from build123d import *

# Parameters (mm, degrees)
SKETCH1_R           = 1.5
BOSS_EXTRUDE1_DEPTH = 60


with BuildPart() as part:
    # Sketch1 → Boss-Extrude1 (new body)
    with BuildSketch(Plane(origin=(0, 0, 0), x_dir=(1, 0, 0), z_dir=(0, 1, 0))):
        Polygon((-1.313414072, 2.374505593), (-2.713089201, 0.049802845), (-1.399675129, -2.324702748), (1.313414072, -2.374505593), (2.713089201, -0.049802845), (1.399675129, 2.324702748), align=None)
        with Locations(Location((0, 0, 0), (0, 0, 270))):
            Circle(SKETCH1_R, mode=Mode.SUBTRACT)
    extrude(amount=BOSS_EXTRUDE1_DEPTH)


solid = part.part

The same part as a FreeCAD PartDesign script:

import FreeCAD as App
import Part
import Sketcher
from FreeCAD import Vector


def add_polygon(sketch, points):
    """Adds a closed chain of lines whose ends are joined by coincident constraints."""
    first, n = sketch.GeometryCount, len(points)
    for a, b in zip(points, points[1:] + points[:1]):
        sketch.addGeometry(Part.LineSegment(App.Vector(*a, 0), App.Vector(*b, 0)), False)
    for i in range(n):
        sketch.addConstraint(Sketcher.Constraint("Coincident", first + i, 2, first + (i + 1) % n, 1))

doc = App.newDocument("Part")
params = doc.addObject("Spreadsheet::Sheet", "Params")
for row, (alias, value) in enumerate([
    ("sketch1_diameter", "3 mm"),
    ("pad1_length", "60 mm"),
], start=1):
    params.set(f"A{row}", alias)
    params.set(f"B{row}", "=" + value)
    params.setAlias(f"B{row}", alias)

body = doc.addObject("PartDesign::Body", "Body")

# Sketch on XZ plane
sketch1 = doc.addObject("Sketcher::SketchObject", "Sketch")
body.addObject(sketch1)
sketch1.AttachmentSupport = (doc.XZ_Plane, [""])
sketch1.MapMode = "FlatFace"
add_polygon(sketch1, [(-1.3, -2.4), (-2.7, 0), (-1.4, 2.3), (1.3, 2.4), (2.7, 0), (1.4, -2.3)])  # lines 0-5
sketch1.addGeometry(Part.Circle(Vector(0, 0, 0), Vector(0, 0, 1), 1.5), False)  # 6
sketch1.addConstraint([
    Sketcher.Constraint("Coincident", 6, 3, -1, 1),
    Sketcher.Constraint("Symmetric", 0, 2, 3, 2, -1, 1),
    Sketcher.Constraint("Symmetric", 1, 2, 4, 2, -1, 1),
    Sketcher.Constraint("Symmetric", 2, 2, 5, 2, -1, 1),
    Sketcher.Constraint("Equal", 0, 1),
    Sketcher.Constraint("Equal", 1, 2),
    Sketcher.Constraint("Diameter", 6, 3.0),
    Sketcher.Constraint("DistanceY", 3, 2, 1, 2, 2.2749),
    Sketcher.Constraint("DistanceX", 0, 2, -1, 1, 2.713089),
    Sketcher.Constraint("DistanceX", 1, 2, 2, 2, 2.713089),
    Sketcher.Constraint("DistanceY", 0, 2, 2, 2, 2.424308),
])
sketch1.setExpression("Constraints[12]", "Params.sketch1_diameter")
pad1 = doc.addObject("PartDesign::Pad", "Pad")
body.addObject(pad1)
pad1.Profile = sketch1
pad1.setExpression("Length", "Params.pad1_length")
pad1.Reversed = True

doc.recompute()
